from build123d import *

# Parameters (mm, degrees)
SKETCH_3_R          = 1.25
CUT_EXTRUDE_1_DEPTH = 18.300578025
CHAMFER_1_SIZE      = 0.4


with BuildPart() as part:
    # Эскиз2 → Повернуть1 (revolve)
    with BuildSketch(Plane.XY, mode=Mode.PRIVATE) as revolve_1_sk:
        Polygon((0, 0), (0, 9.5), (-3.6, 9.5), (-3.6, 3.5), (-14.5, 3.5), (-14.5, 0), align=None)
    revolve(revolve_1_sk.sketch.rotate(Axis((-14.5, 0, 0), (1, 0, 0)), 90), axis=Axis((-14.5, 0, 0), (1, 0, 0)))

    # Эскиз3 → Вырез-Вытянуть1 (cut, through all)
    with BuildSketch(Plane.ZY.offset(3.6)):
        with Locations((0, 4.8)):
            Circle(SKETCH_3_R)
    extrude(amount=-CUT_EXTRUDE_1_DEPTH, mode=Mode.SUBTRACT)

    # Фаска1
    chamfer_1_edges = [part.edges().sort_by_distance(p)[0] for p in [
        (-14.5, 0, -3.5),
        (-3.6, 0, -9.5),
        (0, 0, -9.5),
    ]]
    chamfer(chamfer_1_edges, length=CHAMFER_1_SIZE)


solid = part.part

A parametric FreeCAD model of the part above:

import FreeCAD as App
import Part
import Sketcher
from FreeCAD import Vector
Q = App.Units.Quantity


def edges_at(feature, points):
    """Names of the edges that pass closest to the given points."""
    edges = feature.Shape.Edges
    near = lambda p: min(range(len(edges)), key=lambda i: edges[i].distToShape(Part.Vertex(*p))[0])
    return sorted({f"Edge{near(p) + 1}" for p in points})


def add_polygon(sketch, points):
    """Adds a closed chain of lines whose ends are joined by coincident constraints."""
    first, n = sketch.GeometryCount, len(points)
    for a, b in zip(points, points[1:] + points[:1]):
        sketch.addGeometry(Part.LineSegment(App.Vector(*a, 0), App.Vector(*b, 0)), False)
    for i in range(n):
        sketch.addConstraint(Sketcher.Constraint("Coincident", first + i, 2, first + (i + 1) % n, 1))

doc = App.newDocument("Part")
body = doc.addObject("PartDesign::Body", "Body")

# Sketch on XY plane
sketch1 = body.newObject("Sketcher::SketchObject", "Sketch")
sketch1.AttachmentSupport = (doc.getObject("XY_Plane"), [""])
sketch1.MapMode = "FlatFace"
add_polygon(sketch1, [(0, 0), (0, 9.5), (-3.6, 9.5), (-3.6, 3.5), (-14.5, 3.5), (-14.5, 0)])  # lines 0-5
sketch1.addConstraint([
    Sketcher.Constraint("Vertical", 0),
    Sketcher.Constraint("Horizontal", 1),
    Sketcher.Constraint("Vertical", 2),
    Sketcher.Constraint("Horizontal", 3),
    Sketcher.Constraint("Vertical", 4),
    Sketcher.Constraint("Horizontal", 5),
    Sketcher.Constraint("Coincident", 5, 2, -1, 1),
    Sketcher.Constraint("DistanceY", 2, 2, 2, 1, Q("6 mm")),
    Sketcher.Constraint("DistanceX", 1, 2, 1, 1, Q("3.6 mm")),
    Sketcher.Constraint("DistanceX", 3, 2, 3, 1, Q("10.9 mm")),
    Sketcher.Constraint("DistanceY", 0, 1, 0, 2, Q("9.5 mm")),
])
revolution = body.newObject("PartDesign::Revolution", "Revolution")
revolution.Profile = sketch1
revolution.ReferenceAxis = (sketch1, ["H_Axis"])
revolution.Angle = 360

# Sketch on YZ plane
sketch2 = body.newObject("Sketcher::SketchObject", "Sketch001")
sketch2.AttachmentSupport = (doc.getObject("YZ_Plane"), [""])
sketch2.MapMode = "FlatFace"
sketch2.AttachmentOffset = App.Placement(Vector(0, 0, -3.6), App.Rotation())
sketch2.addGeometry(Part.Circle(Vector(4.8, 0, 0), Vector(0, 0, 1), 1.2), False)
sketch2.addConstraint([
    Sketcher.Constraint("PointOnObject", 0, 3, -1),
    Sketcher.Constraint("Diameter", 0, Q("2.5 mm")),
    Sketcher.Constraint("DistanceX", -1, 1, 0, 3, Q("4.8 mm")),
])
pocket1 = body.newObject("PartDesign::Pocket", "Pocket")
pocket1.Profile = sketch2
pocket1.Type = "ThroughAll"
pocket1.Reversed = True
doc.recompute()

chamfer = body.newObject("PartDesign::Chamfer", "Chamfer")
chamfer.Base = (pocket1, edges_at(pocket1, [(-14.5, 0, -3.5), (-3.6, 0, -9.5), (0, 0, -9.5)]))
chamfer.Size = 0.4

doc.recompute()
